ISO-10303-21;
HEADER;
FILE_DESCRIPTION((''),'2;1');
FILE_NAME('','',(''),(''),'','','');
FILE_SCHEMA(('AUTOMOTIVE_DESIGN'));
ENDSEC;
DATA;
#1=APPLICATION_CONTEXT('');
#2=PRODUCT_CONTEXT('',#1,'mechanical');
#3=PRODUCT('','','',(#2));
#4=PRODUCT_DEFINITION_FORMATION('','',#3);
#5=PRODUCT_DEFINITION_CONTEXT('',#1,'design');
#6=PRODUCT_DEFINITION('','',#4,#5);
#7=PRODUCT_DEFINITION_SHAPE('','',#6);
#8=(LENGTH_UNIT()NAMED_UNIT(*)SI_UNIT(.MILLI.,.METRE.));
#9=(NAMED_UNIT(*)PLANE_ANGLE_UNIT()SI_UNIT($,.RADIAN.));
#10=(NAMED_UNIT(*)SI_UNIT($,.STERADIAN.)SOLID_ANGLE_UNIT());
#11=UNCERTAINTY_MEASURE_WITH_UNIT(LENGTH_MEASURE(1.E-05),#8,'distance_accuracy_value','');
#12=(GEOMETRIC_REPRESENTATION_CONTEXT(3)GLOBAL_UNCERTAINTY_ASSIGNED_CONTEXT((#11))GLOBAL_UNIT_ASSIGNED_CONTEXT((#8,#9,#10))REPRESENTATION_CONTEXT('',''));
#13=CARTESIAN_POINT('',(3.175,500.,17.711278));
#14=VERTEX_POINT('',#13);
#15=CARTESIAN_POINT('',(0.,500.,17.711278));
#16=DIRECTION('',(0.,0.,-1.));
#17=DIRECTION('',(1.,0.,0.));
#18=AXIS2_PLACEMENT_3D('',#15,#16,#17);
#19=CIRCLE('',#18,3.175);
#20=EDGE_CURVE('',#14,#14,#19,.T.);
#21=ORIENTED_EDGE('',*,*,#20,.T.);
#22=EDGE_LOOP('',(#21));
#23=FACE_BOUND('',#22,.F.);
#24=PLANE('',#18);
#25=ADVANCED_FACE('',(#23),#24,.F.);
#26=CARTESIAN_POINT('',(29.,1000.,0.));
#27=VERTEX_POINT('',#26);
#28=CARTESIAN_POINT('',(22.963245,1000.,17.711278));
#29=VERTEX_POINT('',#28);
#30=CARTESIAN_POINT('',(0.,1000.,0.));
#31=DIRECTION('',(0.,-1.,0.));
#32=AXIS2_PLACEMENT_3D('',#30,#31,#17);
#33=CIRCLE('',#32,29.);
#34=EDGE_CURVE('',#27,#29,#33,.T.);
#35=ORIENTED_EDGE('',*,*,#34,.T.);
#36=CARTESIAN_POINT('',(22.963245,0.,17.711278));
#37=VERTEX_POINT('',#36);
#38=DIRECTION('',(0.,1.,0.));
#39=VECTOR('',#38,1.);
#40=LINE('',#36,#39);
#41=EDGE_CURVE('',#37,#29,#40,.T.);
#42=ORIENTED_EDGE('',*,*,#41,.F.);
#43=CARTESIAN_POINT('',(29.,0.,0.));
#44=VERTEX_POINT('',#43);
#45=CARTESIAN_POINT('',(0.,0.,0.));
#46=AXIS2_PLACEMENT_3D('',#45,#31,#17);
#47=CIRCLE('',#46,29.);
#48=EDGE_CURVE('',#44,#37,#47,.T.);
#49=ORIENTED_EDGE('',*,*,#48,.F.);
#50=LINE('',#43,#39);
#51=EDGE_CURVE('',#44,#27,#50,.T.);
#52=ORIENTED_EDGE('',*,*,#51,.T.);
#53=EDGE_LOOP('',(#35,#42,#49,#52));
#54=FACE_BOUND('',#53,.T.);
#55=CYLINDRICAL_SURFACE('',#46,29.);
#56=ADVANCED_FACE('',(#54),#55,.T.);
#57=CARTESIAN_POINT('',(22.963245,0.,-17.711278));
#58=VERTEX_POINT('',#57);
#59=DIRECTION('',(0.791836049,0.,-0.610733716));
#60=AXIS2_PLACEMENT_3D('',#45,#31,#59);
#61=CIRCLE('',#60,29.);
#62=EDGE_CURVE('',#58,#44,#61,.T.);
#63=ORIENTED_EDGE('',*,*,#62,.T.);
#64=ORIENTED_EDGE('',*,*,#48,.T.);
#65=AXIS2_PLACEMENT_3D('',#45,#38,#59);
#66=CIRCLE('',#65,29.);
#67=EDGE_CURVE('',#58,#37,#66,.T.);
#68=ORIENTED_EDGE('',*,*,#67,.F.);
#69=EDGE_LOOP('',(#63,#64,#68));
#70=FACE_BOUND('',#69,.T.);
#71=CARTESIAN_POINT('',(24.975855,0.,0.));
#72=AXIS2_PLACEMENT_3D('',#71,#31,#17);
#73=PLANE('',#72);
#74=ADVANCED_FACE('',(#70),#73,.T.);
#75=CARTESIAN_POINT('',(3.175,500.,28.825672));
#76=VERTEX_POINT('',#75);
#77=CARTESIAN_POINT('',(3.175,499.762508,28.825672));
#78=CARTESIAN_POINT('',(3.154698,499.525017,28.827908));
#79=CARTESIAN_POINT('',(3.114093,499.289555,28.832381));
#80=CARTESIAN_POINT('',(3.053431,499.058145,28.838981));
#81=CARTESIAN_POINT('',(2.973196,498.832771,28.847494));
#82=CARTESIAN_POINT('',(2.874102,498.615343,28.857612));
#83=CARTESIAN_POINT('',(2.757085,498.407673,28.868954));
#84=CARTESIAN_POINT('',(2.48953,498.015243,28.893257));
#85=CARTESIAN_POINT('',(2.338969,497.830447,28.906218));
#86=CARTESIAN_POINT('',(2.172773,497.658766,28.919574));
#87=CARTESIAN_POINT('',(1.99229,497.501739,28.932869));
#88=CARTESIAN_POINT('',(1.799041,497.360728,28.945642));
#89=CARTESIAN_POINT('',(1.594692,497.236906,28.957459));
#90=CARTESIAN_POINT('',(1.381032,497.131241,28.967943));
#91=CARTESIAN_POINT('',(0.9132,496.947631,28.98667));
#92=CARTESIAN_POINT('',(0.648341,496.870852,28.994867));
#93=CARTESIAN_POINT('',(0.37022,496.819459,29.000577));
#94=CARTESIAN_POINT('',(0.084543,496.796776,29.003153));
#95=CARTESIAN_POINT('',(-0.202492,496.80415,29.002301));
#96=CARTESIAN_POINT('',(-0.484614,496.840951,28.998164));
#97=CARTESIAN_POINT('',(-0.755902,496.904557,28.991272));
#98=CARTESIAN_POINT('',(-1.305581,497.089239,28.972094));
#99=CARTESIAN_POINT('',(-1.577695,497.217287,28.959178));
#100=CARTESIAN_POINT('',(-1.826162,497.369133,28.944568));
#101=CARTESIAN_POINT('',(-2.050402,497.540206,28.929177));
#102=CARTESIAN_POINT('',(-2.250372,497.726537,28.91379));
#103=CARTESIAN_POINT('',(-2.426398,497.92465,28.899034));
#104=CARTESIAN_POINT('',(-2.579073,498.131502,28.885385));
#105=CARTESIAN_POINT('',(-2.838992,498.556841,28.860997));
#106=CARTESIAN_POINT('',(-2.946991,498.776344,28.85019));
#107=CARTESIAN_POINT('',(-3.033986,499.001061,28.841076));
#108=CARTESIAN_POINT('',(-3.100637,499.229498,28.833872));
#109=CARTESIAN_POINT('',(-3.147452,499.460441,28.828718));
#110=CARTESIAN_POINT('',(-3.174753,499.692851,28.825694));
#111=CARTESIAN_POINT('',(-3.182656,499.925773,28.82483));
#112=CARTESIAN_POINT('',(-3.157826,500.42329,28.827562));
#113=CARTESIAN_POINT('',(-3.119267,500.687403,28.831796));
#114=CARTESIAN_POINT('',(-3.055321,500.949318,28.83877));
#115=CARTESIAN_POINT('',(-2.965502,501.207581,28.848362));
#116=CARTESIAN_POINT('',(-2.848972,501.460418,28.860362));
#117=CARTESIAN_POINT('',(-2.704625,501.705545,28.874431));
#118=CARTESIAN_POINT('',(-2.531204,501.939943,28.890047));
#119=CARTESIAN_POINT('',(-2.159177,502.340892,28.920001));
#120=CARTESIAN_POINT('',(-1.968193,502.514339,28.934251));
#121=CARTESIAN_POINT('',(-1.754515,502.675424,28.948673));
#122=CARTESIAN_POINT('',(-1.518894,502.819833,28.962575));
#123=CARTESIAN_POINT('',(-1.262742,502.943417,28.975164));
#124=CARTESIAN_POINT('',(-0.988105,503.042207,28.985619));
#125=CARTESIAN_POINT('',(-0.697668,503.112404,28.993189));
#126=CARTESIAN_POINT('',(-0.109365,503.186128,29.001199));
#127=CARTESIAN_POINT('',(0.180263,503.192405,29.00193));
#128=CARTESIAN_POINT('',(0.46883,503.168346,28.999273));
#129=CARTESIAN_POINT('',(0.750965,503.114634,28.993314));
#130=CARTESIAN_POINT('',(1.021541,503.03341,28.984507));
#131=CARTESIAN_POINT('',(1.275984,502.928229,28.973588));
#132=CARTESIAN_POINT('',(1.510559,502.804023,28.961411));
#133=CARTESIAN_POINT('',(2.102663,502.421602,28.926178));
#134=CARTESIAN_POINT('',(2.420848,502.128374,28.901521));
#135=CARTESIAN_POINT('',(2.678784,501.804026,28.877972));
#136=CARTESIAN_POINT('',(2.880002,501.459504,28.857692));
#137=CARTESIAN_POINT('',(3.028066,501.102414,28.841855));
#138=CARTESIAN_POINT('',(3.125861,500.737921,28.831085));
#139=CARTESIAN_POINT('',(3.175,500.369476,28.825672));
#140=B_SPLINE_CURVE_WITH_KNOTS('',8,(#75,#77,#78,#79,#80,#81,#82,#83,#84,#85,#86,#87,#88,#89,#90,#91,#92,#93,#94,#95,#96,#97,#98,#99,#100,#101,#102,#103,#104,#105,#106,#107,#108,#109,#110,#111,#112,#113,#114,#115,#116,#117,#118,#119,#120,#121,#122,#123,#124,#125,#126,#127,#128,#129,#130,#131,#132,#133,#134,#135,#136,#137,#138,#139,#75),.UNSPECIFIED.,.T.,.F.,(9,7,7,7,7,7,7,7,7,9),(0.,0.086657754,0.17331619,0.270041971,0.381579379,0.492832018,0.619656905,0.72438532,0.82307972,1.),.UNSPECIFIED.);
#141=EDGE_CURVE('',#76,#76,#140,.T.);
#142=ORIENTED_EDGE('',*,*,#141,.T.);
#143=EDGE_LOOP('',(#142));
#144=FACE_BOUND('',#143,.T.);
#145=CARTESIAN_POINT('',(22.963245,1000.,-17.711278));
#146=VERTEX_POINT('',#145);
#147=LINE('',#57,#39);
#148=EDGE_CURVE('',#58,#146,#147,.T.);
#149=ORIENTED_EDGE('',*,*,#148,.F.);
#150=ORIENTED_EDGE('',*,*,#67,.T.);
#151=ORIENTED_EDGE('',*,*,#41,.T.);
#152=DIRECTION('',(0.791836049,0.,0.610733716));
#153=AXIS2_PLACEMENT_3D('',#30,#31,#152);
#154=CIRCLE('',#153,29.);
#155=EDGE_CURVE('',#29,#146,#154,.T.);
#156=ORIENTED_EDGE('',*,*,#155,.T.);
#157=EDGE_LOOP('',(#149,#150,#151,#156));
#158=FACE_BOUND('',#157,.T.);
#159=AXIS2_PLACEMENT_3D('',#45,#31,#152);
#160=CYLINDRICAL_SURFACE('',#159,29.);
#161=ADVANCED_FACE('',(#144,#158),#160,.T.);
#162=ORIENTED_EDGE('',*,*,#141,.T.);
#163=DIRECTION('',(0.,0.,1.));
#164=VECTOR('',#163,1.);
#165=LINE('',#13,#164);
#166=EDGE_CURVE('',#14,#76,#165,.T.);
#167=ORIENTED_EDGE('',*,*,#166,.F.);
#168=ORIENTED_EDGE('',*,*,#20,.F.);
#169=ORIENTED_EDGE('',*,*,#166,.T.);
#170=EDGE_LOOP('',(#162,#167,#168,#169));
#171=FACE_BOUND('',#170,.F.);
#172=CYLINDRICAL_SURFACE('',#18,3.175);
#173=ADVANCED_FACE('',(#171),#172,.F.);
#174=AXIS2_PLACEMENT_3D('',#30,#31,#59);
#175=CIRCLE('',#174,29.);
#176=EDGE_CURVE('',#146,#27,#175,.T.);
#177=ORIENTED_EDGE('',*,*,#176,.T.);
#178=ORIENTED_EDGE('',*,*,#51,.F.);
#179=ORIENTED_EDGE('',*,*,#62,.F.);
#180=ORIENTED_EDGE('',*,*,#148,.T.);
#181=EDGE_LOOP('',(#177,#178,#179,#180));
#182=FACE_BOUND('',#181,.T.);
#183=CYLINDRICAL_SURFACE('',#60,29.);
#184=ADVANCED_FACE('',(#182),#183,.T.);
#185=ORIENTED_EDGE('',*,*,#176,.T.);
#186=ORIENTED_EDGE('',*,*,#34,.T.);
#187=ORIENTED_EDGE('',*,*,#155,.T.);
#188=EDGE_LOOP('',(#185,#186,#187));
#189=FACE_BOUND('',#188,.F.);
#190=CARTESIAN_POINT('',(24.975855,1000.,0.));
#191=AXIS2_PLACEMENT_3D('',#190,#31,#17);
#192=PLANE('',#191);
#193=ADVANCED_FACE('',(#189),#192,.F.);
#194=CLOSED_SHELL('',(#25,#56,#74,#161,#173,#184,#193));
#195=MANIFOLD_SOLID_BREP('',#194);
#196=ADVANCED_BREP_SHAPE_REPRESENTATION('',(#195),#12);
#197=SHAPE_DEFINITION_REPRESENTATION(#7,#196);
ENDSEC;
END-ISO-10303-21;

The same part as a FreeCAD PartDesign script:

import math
import FreeCAD as App
import Part
import Sketcher
from FreeCAD import Vector


def add_polygon(sketch, points):
    """Adds a closed chain of lines whose ends are joined by coincident constraints."""
    first, n = sketch.GeometryCount, len(points)
    for a, b in zip(points, points[1:] + points[:1]):
        sketch.addGeometry(Part.LineSegment(App.Vector(*a, 0), App.Vector(*b, 0)), False)
    for i in range(n):
        sketch.addConstraint(Sketcher.Constraint("Coincident", first + i, 2, first + (i + 1) % n, 1))

doc = App.newDocument("Part")
body = doc.addObject("PartDesign::Body", "Body")

# Sketch on XZ plane
sketch1 = doc.addObject("Sketcher::SketchObject", "Sketch")
body.addObject(sketch1)
sketch1.AttachmentSupport = (doc.XZ_Plane, [""])
sketch1.MapMode = "FlatFace"
add_polygon(sketch1, [(-23, 18), (-23, -18), (23, -18), (23, 18)])  # lines 0-3
sketch1.addConstraint([
    Sketcher.Constraint("Vertical", 0),
    Sketcher.Constraint("Horizontal", 1),
    Sketcher.Constraint("Vertical", 2),
    Sketcher.Constraint("Horizontal", 3),
    Sketcher.Constraint("Symmetric", 0, 2, 2, 2, -1, 1),
    Sketcher.Constraint("DistanceX", 1, 1, 1, 2, 45.926491),
    Sketcher.Constraint("DistanceY", 0, 2, 0, 1, 35.422556),
])
pad1 = doc.addObject("PartDesign::Pad", "Pad")
body.addObject(pad1)
pad1.Profile = sketch1
pad1.Length = 1000
pad1.Reversed = True

# Sketch on XZ plane
sketch2 = doc.addObject("Sketcher::SketchObject", "Sketch001")
body.addObject(sketch2)
sketch2.AttachmentSupport = (doc.XZ_Plane, [""])
sketch2.MapMode = "FlatFace"
sketch2.addGeometry([
    Part.ArcOfCircle(Part.Circle(Vector(0, 0, 0), Vector(0, 0, 1), 29), math.radians(-38), math.radians(0)),
    Part.ArcOfCircle(Part.Circle(Vector(0, 0, 0), Vector(0, 0, 1), 29), math.radians(0), math.radians(38)),
    Part.ArcOfCircle(Part.Circle(Vector(0, 0, 0), Vector(0, 0, 1), 29), math.radians(38), math.radians(322)),
], False)
sketch2.addConstraint([
    Sketcher.Constraint("Tangent", 0, 2, 1, 1),
    Sketcher.Constraint("Tangent", 1, 2, 2, 1),
    Sketcher.Constraint("Tangent", 2, 2, 0, 1),
    Sketcher.Constraint("Coincident", 0, 3, -1, 1),
    Sketcher.Constraint("PointOnObject", 0, 2, -1),
    Sketcher.Constraint("Vertical", 1, 2, 2, 2),
    Sketcher.Constraint("Radius", 0, 29.0),
    Sketcher.Constraint("DistanceX", -1, 1, 1, 2, 22.963245),
])
pad2 = doc.addObject("PartDesign::Pad", "Pad001")
body.addObject(pad2)
pad2.Profile = sketch2
pad2.Length = 1000
pad2.Reversed = True

# Sketch on XY plane
sketch3 = doc.addObject("Sketcher::SketchObject", "Sketch002")
body.addObject(sketch3)
sketch3.AttachmentSupport = (doc.XY_Plane, [""])
sketch3.MapMode = "FlatFace"
sketch3.AttachmentOffset = App.Placement(Vector(0, 0, 17.711278), App.Rotation())
sketch3.addGeometry(Part.Circle(Vector(0, 500, 0), Vector(0, 0, 1), 3.2), False)
sketch3.addConstraint([
    Sketcher.Constraint("PointOnObject", 0, 3, -2),
    Sketcher.Constraint("Diameter", 0, 6.35),
    Sketcher.Constraint("DistanceY", -1, 1, 0, 3, 500.0),
])
pocket1 = doc.addObject("PartDesign::Pocket", "Pocket")
body.addObject(pocket1)
pocket1.Profile = sketch3
pocket1.Type = "ThroughAll"
pocket1.Reversed = True

doc.recompute()
